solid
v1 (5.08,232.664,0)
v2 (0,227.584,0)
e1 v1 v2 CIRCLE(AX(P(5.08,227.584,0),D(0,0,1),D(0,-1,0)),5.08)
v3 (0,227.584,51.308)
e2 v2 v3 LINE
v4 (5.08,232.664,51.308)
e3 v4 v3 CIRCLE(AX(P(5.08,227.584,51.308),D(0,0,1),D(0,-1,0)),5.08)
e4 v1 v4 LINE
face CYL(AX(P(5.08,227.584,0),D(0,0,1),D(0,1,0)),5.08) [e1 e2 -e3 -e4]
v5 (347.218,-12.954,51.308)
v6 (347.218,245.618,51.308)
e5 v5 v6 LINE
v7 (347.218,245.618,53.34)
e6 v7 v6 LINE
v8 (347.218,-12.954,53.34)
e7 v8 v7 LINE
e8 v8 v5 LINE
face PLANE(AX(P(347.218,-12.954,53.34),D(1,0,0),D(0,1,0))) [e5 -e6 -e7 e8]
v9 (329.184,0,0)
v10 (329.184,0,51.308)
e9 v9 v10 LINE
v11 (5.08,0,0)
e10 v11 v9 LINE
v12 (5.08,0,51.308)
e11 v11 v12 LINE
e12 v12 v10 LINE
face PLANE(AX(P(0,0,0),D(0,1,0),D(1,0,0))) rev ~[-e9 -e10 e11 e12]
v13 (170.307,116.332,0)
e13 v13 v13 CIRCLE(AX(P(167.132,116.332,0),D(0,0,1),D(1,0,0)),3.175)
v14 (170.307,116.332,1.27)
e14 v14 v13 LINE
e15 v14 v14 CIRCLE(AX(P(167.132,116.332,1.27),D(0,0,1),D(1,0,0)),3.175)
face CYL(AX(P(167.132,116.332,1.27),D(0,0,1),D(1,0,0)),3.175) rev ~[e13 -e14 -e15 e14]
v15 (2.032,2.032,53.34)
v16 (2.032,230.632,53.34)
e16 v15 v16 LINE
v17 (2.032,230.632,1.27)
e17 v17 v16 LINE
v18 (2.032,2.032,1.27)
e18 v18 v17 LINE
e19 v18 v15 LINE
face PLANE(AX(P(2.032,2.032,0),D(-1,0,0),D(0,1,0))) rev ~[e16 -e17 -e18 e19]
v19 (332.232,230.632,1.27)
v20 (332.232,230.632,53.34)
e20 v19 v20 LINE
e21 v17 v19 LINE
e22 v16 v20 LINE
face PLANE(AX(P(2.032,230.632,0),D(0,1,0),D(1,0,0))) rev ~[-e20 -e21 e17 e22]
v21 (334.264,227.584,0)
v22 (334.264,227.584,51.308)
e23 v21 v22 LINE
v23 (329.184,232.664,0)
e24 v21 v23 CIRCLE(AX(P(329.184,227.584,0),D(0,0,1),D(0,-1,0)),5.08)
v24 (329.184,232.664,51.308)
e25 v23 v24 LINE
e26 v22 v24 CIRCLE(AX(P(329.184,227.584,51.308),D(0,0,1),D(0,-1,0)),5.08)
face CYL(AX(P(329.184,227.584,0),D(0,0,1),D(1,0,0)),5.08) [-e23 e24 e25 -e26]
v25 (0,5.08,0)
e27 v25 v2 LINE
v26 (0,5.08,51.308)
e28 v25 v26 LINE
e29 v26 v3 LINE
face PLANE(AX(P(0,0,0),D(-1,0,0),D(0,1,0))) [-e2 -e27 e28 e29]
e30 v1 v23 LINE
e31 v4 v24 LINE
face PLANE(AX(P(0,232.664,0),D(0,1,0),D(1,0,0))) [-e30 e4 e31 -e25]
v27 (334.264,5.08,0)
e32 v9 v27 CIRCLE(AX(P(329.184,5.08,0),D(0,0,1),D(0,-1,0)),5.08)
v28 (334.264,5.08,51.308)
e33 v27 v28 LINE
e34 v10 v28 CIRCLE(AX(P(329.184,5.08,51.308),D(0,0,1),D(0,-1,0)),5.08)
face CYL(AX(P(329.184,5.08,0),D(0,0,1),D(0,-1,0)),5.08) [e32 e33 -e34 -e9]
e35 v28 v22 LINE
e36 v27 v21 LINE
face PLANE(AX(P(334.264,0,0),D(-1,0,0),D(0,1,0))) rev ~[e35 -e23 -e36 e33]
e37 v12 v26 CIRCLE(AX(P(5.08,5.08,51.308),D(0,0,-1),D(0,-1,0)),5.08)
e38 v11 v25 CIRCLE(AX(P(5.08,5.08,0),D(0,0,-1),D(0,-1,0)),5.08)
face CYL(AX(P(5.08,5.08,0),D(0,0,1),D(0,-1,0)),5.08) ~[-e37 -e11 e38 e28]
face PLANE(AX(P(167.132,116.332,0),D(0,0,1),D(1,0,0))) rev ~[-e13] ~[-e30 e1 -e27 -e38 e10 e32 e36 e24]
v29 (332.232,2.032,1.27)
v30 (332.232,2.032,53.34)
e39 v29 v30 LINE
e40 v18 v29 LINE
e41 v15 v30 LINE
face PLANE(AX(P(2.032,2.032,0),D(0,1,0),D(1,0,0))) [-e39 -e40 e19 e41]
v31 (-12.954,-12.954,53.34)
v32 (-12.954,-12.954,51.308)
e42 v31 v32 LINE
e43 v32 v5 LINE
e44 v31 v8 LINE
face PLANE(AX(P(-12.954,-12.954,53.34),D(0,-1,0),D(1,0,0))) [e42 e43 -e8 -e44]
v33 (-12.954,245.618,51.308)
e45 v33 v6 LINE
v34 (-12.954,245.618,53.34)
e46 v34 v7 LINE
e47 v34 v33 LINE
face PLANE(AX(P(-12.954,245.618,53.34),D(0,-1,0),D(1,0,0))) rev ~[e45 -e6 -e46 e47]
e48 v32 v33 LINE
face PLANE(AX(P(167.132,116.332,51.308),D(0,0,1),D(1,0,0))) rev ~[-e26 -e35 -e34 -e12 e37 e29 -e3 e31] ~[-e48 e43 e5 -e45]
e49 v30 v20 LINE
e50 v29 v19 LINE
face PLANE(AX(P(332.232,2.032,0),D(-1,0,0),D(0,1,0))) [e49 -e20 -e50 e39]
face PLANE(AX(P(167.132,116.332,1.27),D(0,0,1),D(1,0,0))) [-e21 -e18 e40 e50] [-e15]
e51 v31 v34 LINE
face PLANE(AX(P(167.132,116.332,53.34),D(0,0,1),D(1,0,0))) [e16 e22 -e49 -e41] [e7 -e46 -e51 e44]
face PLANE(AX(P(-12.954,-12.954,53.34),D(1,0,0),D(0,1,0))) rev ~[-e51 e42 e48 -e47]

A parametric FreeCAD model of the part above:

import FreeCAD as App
import Part
import Sketcher
Q = App.Units.Quantity


def edges_at(feature, points):
    """Names of the edges that pass closest to the given points."""
    edges = feature.Shape.Edges
    near = lambda p: min(range(len(edges)), key=lambda i: edges[i].distToShape(Part.Vertex(*p))[0])
    return sorted({f"Edge{near(p) + 1}" for p in points})

doc = App.newDocument("Part")
body = doc.addObject("PartDesign::Body", "Body")

# Sketch on XY plane
sketch1 = body.newObject("Sketcher::SketchObject", "Sketch")
sketch1.AttachmentSupport = (doc.getObject("XY_Plane"), [""])
sketch1.MapMode = "FlatFace"
sketch1.addGeometry([
    Part.LineSegment(App.Vector(0, 232.664, 0), App.Vector(0, 0, 0)),  # 0
    Part.LineSegment(App.Vector(0, 0, 0), App.Vector(334.264, 0, 0)),  # 1
    Part.LineSegment(App.Vector(334.264, 0, 0), App.Vector(334.264, 232.664, 0)),  # 2
    Part.LineSegment(App.Vector(334.264, 232.664, 0), App.Vector(0, 232.664, 0)),  # 3
    Part.LineSegment(App.Vector(332.232, 2.032, 0), App.Vector(2.032, 2.032, 0)),  # 4
    Part.LineSegment(App.Vector(2.032, 2.032, 0), App.Vector(2.032, 230.632, 0)),  # 5
    Part.LineSegment(App.Vector(2.032, 230.632, 0), App.Vector(332.232, 230.632, 0)),  # 6
    Part.LineSegment(App.Vector(332.232, 230.632, 0), App.Vector(332.232, 2.032, 0)),  # 7
], False)
sketch1.addConstraint([
    Sketcher.Constraint("Coincident", 0, 2, 1, 1),
    Sketcher.Constraint("Coincident", 1, 2, 2, 1),
    Sketcher.Constraint("Coincident", 2, 2, 3, 1),
    Sketcher.Constraint("Coincident", 3, 2, 0, 1),
    Sketcher.Constraint("Coincident", 4, 2, 5, 1),
    Sketcher.Constraint("Coincident", 5, 2, 6, 1),
    Sketcher.Constraint("Coincident", 6, 2, 7, 1),
    Sketcher.Constraint("Coincident", 7, 2, 4, 1),
    Sketcher.Constraint("Vertical", 0),
    Sketcher.Constraint("Horizontal", 1),
    Sketcher.Constraint("Vertical", 2),
    Sketcher.Constraint("Horizontal", 3),
    Sketcher.Constraint("Horizontal", 4),
    Sketcher.Constraint("Vertical", 5),
    Sketcher.Constraint("Horizontal", 6),
    Sketcher.Constraint("Vertical", 7),
    Sketcher.Constraint("Coincident", 0, 2, -1, 1),
    Sketcher.Constraint("DistanceX", 4, 2, 4, 1, Q("13 in")),
    Sketcher.Constraint("DistanceY", 5, 1, 5, 2, Q("9 in")),
    Sketcher.Constraint("DistanceX", 1, 1, 1, 2, Q("13.16 in")),
    Sketcher.Constraint("DistanceY", 0, 2, 0, 1, Q("9.16 in")),
    Sketcher.Constraint("DistanceX", -1, 1, 4, 2, Q("0.08 in")),
    Sketcher.Constraint("DistanceY", -1, 1, 4, 2, Q("0.08 in")),
])
pad1 = body.newObject("PartDesign::Pad", "Pad")
pad1.Profile = sketch1
pad1.Length = Q("2.1 in")

# Sketch on XY plane
sketch2 = body.newObject("Sketcher::SketchObject", "Sketch001")
sketch2.AttachmentSupport = (doc.getObject("XY_Plane"), [""])
sketch2.MapMode = "FlatFace"
sketch2.addGeometry([
    Part.LineSegment(App.Vector(2.032, 230.632, 0), App.Vector(2.032, 2.032, 0)),
    Part.LineSegment(App.Vector(2.032, 2.032, 0), App.Vector(332.232, 2.032, 0)),
    Part.LineSegment(App.Vector(332.232, 2.032, 0), App.Vector(332.232, 230.632, 0)),
    Part.LineSegment(App.Vector(332.232, 230.632, 0), App.Vector(2.032, 230.632, 0)),
], False)
sketch2.addConstraint([
    Sketcher.Constraint("Coincident", 0, 2, 1, 1),
    Sketcher.Constraint("Coincident", 1, 2, 2, 1),
    Sketcher.Constraint("Coincident", 2, 2, 3, 1),
    Sketcher.Constraint("Coincident", 3, 2, 0, 1),
    Sketcher.Constraint("Vertical", 0),
    Sketcher.Constraint("Horizontal", 1),
    Sketcher.Constraint("Vertical", 2),
    Sketcher.Constraint("Horizontal", 3),
    Sketcher.Constraint("DistanceX", 1, 1, 1, 2, Q("13 in")),
    Sketcher.Constraint("DistanceY", 0, 2, 0, 1, Q("9 in")),
    Sketcher.Constraint("DistanceX", -1, 1, 0, 2, Q("0.08 in")),
    Sketcher.Constraint("DistanceY", -1, 1, 0, 2, Q("0.08 in")),
])
pad2 = body.newObject("PartDesign::Pad", "Pad001")
pad2.Profile = sketch2
pad2.Length = Q("0.05 in")

# Sketch on XY plane
sketch3 = body.newObject("Sketcher::SketchObject", "Sketch002")
sketch3.AttachmentSupport = (doc.getObject("XY_Plane"), [""])
sketch3.MapMode = "FlatFace"
sketch3.AttachmentOffset = App.Placement(App.Vector(0, 0, 2.1 * 25.4), App.Rotation())
sketch3.addGeometry([
    Part.LineSegment(App.Vector(-12.954, 245.618, 0), App.Vector(-12.954, -12.954, 0)),  # 0
    Part.LineSegment(App.Vector(-12.954, -12.954, 0), App.Vector(347.218, -12.954, 0)),  # 1
    Part.LineSegment(App.Vector(347.218, -12.954, 0), App.Vector(347.218, 245.618, 0)),  # 2
    Part.LineSegment(App.Vector(347.218, 245.618, 0), App.Vector(-12.954, 245.618, 0)),  # 3
    Part.LineSegment(App.Vector(334.264, 0, 0), App.Vector(0, 0, 0)),  # 4
    Part.LineSegment(App.Vector(0, 0, 0), App.Vector(0, 232.664, 0)),  # 5
    Part.LineSegment(App.Vector(0, 232.664, 0), App.Vector(334.264, 232.664, 0)),  # 6
    Part.LineSegment(App.Vector(334.264, 232.664, 0), App.Vector(334.264, 0, 0)),  # 7
], False)
sketch3.addConstraint([
    Sketcher.Constraint("Coincident", 0, 2, 1, 1),
    Sketcher.Constraint("Coincident", 1, 2, 2, 1),
    Sketcher.Constraint("Coincident", 2, 2, 3, 1),
    Sketcher.Constraint("Coincident", 3, 2, 0, 1),
    Sketcher.Constraint("Coincident", 4, 2, 5, 1),
    Sketcher.Constraint("Coincident", 5, 2, 6, 1),
    Sketcher.Constraint("Coincident", 6, 2, 7, 1),
    Sketcher.Constraint("Coincident", 7, 2, 4, 1),
    Sketcher.Constraint("Vertical", 0),
    Sketcher.Constraint("Horizontal", 1),
    Sketcher.Constraint("Vertical", 2),
    Sketcher.Constraint("Horizontal", 3),
    Sketcher.Constraint("Horizontal", 4),
    Sketcher.Constraint("Vertical", 5),
    Sketcher.Constraint("Horizontal", 6),
    Sketcher.Constraint("Vertical", 7),
    Sketcher.Constraint("Coincident", 4, 2, -1, 1),
    Sketcher.Constraint("DistanceX", 1, 1, 1, 2, Q("14.18 in")),
    Sketcher.Constraint("DistanceX", 4, 2, 4, 1, Q("13.16 in")),
    Sketcher.Constraint("DistanceY", 0, 2, 0, 1, Q("10.18 in")),
    Sketcher.Constraint("DistanceY", 5, 1, 5, 2, Q("9.16 in")),
    Sketcher.Constraint("DistanceX", 0, 2, -1, 1, Q("0.51 in")),
    Sketcher.Constraint("DistanceY", 0, 2, -1, 1, Q("0.51 in")),
])
pad3 = body.newObject("PartDesign::Pad", "Pad002")
pad3.Profile = sketch3
pad3.Length = Q("0.08 in")
pad3.Reversed = True
doc.recompute()

fillet = body.newObject("PartDesign::Fillet", "Fillet")
fillet.Base = (pad3, edges_at(pad3, [
    (334.264, 0, 25.654),
    (334.264, 232.664, 25.654),
    (0, 232.664, 25.654),
    (0, 0, 25.654),
]))
fillet.Radius = Q("0.2 in")

# Sketch on XY plane
sketch4 = body.newObject("Sketcher::SketchObject", "Sketch003")
sketch4.AttachmentSupport = (doc.getObject("XY_Plane"), [""])
sketch4.MapMode = "FlatFace"
sketch4.AttachmentOffset = App.Placement(App.Vector(0, 0, 0.05 * 25.4), App.Rotation())
sketch4.addGeometry(Part.Circle(App.Vector(167.132, 116.332, 0), App.Vector(0, 0, 1), 3.175), False)
sketch4.addConstraint([
    Sketcher.Constraint("Diameter", 0, Q("0.25 in")),
    Sketcher.Constraint("DistanceX", -1, 1, 0, 3, Q("6.58 in")),
    Sketcher.Constraint("DistanceY", -1, 1, 0, 3, Q("4.58 in")),
])
pocket1 = body.newObject("PartDesign::Pocket", "Pocket")
pocket1.Profile = sketch4
pocket1.Type = "ThroughAll"

doc.recompute()
